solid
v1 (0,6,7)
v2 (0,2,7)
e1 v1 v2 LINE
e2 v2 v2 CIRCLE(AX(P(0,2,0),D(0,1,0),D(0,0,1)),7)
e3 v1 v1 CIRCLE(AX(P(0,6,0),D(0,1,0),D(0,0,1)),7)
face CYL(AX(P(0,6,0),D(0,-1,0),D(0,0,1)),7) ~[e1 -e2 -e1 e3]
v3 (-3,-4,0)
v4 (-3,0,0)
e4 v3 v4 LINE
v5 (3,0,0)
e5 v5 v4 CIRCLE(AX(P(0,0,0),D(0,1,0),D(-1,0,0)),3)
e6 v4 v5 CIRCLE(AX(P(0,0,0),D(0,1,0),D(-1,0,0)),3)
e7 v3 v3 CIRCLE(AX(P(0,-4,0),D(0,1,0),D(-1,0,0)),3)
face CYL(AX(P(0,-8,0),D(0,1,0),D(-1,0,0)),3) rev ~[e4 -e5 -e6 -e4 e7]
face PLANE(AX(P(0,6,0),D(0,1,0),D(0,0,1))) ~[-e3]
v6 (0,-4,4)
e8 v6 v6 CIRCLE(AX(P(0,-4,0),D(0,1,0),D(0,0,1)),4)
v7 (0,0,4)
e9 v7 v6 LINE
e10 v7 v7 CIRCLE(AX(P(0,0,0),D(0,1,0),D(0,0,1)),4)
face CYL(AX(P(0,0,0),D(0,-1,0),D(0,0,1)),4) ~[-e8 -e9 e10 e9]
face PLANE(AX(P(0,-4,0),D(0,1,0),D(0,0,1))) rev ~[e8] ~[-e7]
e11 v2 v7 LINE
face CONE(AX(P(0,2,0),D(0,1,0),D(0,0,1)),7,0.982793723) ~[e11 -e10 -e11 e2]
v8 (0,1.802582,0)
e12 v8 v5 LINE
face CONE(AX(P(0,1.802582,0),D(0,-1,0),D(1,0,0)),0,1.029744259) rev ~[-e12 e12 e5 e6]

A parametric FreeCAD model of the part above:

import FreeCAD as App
import Part
import Sketcher
from FreeCAD import Vector
Q = App.Units.Quantity


def add_polygon(sketch, points):
    """Adds a closed chain of lines whose ends are joined by coincident constraints."""
    first, n = sketch.GeometryCount, len(points)
    for a, b in zip(points, points[1:] + points[:1]):
        sketch.addGeometry(Part.LineSegment(App.Vector(*a, 0), App.Vector(*b, 0)), False)
    for i in range(n):
        sketch.addConstraint(Sketcher.Constraint("Coincident", first + i, 2, first + (i + 1) % n, 1))

doc = App.newDocument("Part")
params = doc.addObject("Spreadsheet::Sheet", "Params")
for row, (alias, value) in enumerate([
    ("sketch1_width", "10 mm"),
    ("sketch1_width2", "4 mm"),
    ("sketch1_height", "7 mm"),
    ("revolution_angle", "360 deg"),
    ("sketch2_diameter", "6 mm"),
    ("hole_diameter", "6 mm"),
    ("hole_depth", "4 mm"),
], start=1):
    params.set(f"A{row}", alias)
    params.set(f"B{row}", "=" + value)
    params.setAlias(f"B{row}", alias)

body = doc.addObject("PartDesign::Body", "Body")

# Sketch on YZ plane
sketch1 = body.newObject("Sketcher::SketchObject", "Sketch")
sketch1.AttachmentSupport = (doc.getObject("YZ_Plane"), [""])
sketch1.MapMode = "FlatFace"
add_polygon(sketch1, [(-4, 4), (-4, 0), (6, 0), (6, 7), (2, 7), (0, 4)])  # lines 0-5
sketch1.addConstraint(Sketcher.Constraint("Vertical", 0))
sketch1.addConstraint(Sketcher.Constraint("Horizontal", 1))
sketch1.addConstraint(Sketcher.Constraint("Vertical", 2))
sketch1.addConstraint(Sketcher.Constraint("Horizontal", 3))
sketch1.addConstraint(Sketcher.Constraint("Horizontal", 5))
sketch1.addConstraint(Sketcher.Constraint("PointOnObject", 0, 2, -1))
sketch1.addConstraint(Sketcher.Constraint("PointOnObject", 4, 2, -2))
sketch1.addConstraint(Sketcher.Constraint("Equal", 3, 5))
sketch1.addConstraint(Sketcher.Constraint("Equal", 5, 0))
sketch1.addConstraint(Sketcher.Constraint("DistanceX", 1, 1, 1, 2, Q("10 mm")))
sketch1.addConstraint(Sketcher.Constraint("DistanceX", 3, 2, 3, 1, Q("4 mm")))
sketch1.addConstraint(Sketcher.Constraint("DistanceY", 2, 1, 2, 2, Q("7 mm")))
sketch1.setExpression("Constraints[15]", "Params.sketch1_width")
sketch1.setExpression("Constraints[16]", "Params.sketch1_width2")
sketch1.setExpression("Constraints[17]", "Params.sketch1_height")
revolution = body.newObject("PartDesign::Revolution", "Revolution")
revolution.Profile = sketch1
revolution.ReferenceAxis = (sketch1, ["H_Axis"])
revolution.setExpression("Angle", "Params.revolution_angle")

# Sketch on XZ plane
sketch2 = body.newObject("Sketcher::SketchObject", "Sketch001")
sketch2.AttachmentSupport = (doc.getObject("XZ_Plane"), [""])
sketch2.MapMode = "FlatFace"
sketch2.AttachmentOffset = App.Placement(Vector(0, 0, 4), App.Rotation())
sketch2.addGeometry(Part.Circle(Vector(0, 0, 0), Vector(0, 0, 1), 3), False)
sketch2.addConstraint(Sketcher.Constraint("Coincident", 0, 3, -1, 1))
sketch2.addConstraint(Sketcher.Constraint("Diameter", 0, Q("6 mm")))
sketch2.setExpression("Constraints[1]", "Params.sketch2_diameter")
doc.recompute()
hole = body.newObject("PartDesign::Hole", "Hole")
hole.Profile = sketch2
hole.ThreadType = "None"
hole.setExpression("Diameter", "Params.hole_diameter")
hole.DepthType = "Dimension"
hole.setExpression("Depth", "Params.hole_depth")
hole.DrillPoint = "Angled"
hole.DrillPointAngle = 118

doc.recompute()
